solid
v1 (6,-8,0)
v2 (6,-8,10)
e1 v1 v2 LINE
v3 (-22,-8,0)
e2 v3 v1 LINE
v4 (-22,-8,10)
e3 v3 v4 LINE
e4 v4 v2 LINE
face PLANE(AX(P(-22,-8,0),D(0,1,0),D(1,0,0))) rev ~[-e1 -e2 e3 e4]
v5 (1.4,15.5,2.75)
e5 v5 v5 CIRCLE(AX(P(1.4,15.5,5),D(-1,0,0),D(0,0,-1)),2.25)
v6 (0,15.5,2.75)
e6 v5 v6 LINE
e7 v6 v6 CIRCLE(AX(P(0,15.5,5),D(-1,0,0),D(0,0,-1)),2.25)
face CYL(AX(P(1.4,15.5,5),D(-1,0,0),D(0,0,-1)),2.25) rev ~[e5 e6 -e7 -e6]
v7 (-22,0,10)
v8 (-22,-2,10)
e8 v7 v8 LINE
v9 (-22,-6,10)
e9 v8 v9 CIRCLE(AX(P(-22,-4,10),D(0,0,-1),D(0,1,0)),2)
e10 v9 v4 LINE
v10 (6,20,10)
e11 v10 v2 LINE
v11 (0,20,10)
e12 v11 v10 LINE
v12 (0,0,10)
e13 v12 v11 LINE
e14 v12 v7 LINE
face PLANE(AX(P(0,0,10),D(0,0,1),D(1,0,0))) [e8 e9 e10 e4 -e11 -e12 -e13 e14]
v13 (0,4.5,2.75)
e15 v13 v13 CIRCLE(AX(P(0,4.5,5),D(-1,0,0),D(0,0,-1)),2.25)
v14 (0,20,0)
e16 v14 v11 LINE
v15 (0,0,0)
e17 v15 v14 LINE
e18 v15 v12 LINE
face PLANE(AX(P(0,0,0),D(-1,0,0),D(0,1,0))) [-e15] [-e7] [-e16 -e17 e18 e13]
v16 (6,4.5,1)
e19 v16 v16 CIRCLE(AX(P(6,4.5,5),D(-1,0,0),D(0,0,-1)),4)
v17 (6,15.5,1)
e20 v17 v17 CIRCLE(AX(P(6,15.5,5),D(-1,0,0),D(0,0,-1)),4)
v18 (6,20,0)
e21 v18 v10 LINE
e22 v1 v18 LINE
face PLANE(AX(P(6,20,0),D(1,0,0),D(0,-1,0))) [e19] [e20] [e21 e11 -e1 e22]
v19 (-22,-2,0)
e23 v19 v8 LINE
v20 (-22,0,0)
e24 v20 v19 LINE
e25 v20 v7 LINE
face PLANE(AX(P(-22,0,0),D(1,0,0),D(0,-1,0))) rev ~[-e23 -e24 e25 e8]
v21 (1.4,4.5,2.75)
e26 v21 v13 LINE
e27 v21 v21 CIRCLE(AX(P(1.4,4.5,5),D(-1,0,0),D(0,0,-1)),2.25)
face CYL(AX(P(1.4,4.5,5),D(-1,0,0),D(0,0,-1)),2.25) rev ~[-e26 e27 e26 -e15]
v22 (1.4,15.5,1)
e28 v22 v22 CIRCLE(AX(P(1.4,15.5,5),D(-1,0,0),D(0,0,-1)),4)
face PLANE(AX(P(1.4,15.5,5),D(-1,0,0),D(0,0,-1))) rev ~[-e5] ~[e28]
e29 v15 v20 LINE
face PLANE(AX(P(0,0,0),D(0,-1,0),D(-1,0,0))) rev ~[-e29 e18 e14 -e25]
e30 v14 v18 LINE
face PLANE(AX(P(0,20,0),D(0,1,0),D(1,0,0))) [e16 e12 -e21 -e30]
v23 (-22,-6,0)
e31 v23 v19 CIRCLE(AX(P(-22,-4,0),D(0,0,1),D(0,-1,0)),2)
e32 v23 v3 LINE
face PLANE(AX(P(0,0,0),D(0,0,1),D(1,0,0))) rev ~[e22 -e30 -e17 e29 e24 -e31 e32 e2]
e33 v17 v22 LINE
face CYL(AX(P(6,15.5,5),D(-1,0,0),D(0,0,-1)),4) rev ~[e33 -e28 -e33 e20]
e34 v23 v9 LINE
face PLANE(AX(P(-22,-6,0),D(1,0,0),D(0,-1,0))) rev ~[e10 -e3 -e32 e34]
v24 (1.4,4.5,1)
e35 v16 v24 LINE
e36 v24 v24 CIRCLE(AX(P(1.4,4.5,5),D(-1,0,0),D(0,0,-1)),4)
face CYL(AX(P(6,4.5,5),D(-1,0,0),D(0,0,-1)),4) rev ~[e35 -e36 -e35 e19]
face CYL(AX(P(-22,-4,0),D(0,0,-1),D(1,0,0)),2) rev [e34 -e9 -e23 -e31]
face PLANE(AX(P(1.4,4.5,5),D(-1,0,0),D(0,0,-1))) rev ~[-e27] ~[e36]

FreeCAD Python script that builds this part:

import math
import FreeCAD as App
import Part
import Sketcher

V = App.Vector
Q = App.Units.Quantity

doc = App.newDocument("Part")
body = doc.addObject("PartDesign::Body", "Body")

# Sketch on XY plane
sketch1 = body.newObject("Sketcher::SketchObject", "Sketch")
sketch1.AttachmentSupport = (doc.getObject("XY_Plane"), [""])
sketch1.MapMode = "FlatFace"
sketch1.addGeometry(Part.LineSegment(V(6, 20, 0), V(0, 20, 0)), False)
sketch1.addGeometry(Part.LineSegment(V(0, 20, 0), V(0, 0, 0)), False)
sketch1.addGeometry(Part.LineSegment(V(0, 0, 0), V(-22, 0, 0)), False)
sketch1.addGeometry(Part.LineSegment(V(-22, 0, 0), V(-22, -2, 0)), False)
sketch1.addGeometry(Part.ArcOfCircle(Part.Circle(V(-22, -4, 0), V(0, 0, 1), 2), math.radians(-90), math.radians(90)), False)
sketch1.addGeometry(Part.LineSegment(V(-22, -6, 0), V(-22, -8, 0)), False)
sketch1.addGeometry(Part.LineSegment(V(-22, -8, 0), V(6, -8, 0)), False)
sketch1.addGeometry(Part.LineSegment(V(6, -8, 0), V(6, 20, 0)), False)
sketch1.addConstraint(Sketcher.Constraint("Coincident", 0, 2, 1, 1))
sketch1.addConstraint(Sketcher.Constraint("Coincident", 1, 2, 2, 1))
sketch1.addConstraint(Sketcher.Constraint("Coincident", 2, 2, 3, 1))
sketch1.addConstraint(Sketcher.Constraint("Coincident", 3, 2, 4, 2))
sketch1.addConstraint(Sketcher.Constraint("Coincident", 4, 1, 5, 1))
sketch1.addConstraint(Sketcher.Constraint("Coincident", 5, 2, 6, 1))
sketch1.addConstraint(Sketcher.Constraint("Coincident", 6, 2, 7, 1))
sketch1.addConstraint(Sketcher.Constraint("Coincident", 7, 2, 0, 1))
sketch1.addConstraint(Sketcher.Constraint("Horizontal", 0))
sketch1.addConstraint(Sketcher.Constraint("Vertical", 1))
sketch1.addConstraint(Sketcher.Constraint("Horizontal", 2))
sketch1.addConstraint(Sketcher.Constraint("Vertical", 3))
sketch1.addConstraint(Sketcher.Constraint("Vertical", 5))
sketch1.addConstraint(Sketcher.Constraint("Horizontal", 6))
sketch1.addConstraint(Sketcher.Constraint("Vertical", 7))
sketch1.addConstraint(Sketcher.Constraint("Coincident", 1, 2, -1, 1))
sketch1.addConstraint(Sketcher.Constraint("Vertical", 4, 3, 2, 2))
sketch1.addConstraint(Sketcher.Constraint("Vertical", 3, 2, 4, 1))
sketch1.addConstraint(Sketcher.Constraint("Equal", 3, 5))
sketch1.addConstraint(Sketcher.Constraint("Equal", 6, 7))
sketch1.addConstraint(Sketcher.Constraint("Radius", 4, Q("2 mm")))
sketch1.addConstraint(Sketcher.Constraint("DistanceX", 0, 2, 0, 1, Q("6 mm")))
sketch1.addConstraint(Sketcher.Constraint("DistanceX", 2, 2, 2, 1, Q("22 mm")))
sketch1.addConstraint(Sketcher.Constraint("DistanceY", 1, 2, 1, 1, Q("20 mm")))
pad1 = body.newObject("PartDesign::Pad", "Pad")
pad1.Profile = sketch1
pad1.Length = 10

# Sketch on YZ plane
sketch2 = body.newObject("Sketcher::SketchObject", "Sketch001")
sketch2.AttachmentSupport = (doc.getObject("YZ_Plane"), [""])
sketch2.MapMode = "FlatFace"
sketch2.AttachmentOffset = App.Placement(V(0, 0, 6), App.Rotation())
sketch2.addGeometry(Part.Circle(V(15.5, 5, 0), V(0, 0, 1), 2.2), False)
sketch2.addGeometry(Part.Circle(V(4.5, 5, 0), V(0, 0, 1), 2.2), False)
sketch2.addConstraint(Sketcher.Constraint("Equal", 0, 1))
sketch2.addConstraint(Sketcher.Constraint("Horizontal", 0, 3, 1, 3))
sketch2.addConstraint(Sketcher.Constraint("Diameter", 0, Q("4.5 mm")))
sketch2.addConstraint(Sketcher.Constraint("DistanceY", -1, 1, 0, 3, Q("5 mm")))
sketch2.addConstraint(Sketcher.Constraint("DistanceX", 1, 3, 0, 3, Q("11 mm")))
sketch2.addConstraint(Sketcher.Constraint("DistanceX", -1, 1, 0, 3, Q("15.5 mm")))
doc.recompute()
hole = body.newObject("PartDesign::Hole", "Hole")
hole.Profile = sketch2
hole.ThreadType = "None"
hole.Diameter = 4.5
hole.DepthType = "ThroughAll"
hole.HoleCutType = "Counterbore"
hole.HoleCutDiameter = 8
hole.HoleCutDepth = 4.6

doc.recompute()
